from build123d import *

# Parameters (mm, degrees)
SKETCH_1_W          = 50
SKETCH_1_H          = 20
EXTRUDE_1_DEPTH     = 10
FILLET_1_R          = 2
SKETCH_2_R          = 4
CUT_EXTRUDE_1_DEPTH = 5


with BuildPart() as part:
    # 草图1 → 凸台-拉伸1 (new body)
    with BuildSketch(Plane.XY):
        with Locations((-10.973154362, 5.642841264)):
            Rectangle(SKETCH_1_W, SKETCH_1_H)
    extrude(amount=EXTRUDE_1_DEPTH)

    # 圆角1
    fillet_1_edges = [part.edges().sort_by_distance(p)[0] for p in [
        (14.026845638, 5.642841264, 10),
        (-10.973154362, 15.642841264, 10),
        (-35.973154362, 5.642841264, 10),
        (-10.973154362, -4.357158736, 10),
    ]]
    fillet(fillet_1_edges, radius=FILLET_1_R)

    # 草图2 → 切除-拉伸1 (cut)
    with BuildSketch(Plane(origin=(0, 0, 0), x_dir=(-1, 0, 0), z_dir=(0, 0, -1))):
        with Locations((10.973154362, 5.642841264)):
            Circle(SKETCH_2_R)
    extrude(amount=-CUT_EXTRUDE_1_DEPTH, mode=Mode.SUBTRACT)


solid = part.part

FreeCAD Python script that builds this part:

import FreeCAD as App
import Part
import Sketcher
from FreeCAD import Vector


def edges_at(feature, points):
    """Names of the edges that pass closest to the given points."""
    edges = feature.Shape.Edges
    near = lambda p: min(range(len(edges)), key=lambda i: edges[i].distToShape(Part.Vertex(*p))[0])
    return sorted({f"Edge{near(p) + 1}" for p in points})

doc = App.newDocument("Part")
params = doc.addObject("Spreadsheet::Sheet", "Params")
for row, (alias, value) in enumerate([
    ("sketch1_width", "50 mm"),
    ("sketch1_height", "20 mm"),
    ("pad1_length", "10 mm"),
    ("fillet_radius", "2 mm"),
    ("sketch2_diameter", "8 mm"),
    ("pocket1_length", "5 mm"),
], start=1):
    params.set(f"A{row}", alias)
    params.set(f"B{row}", "=" + value)
    params.setAlias(f"B{row}", alias)

body = doc.addObject("PartDesign::Body", "Body")

# Sketch on XY plane
sketch1 = doc.addObject("Sketcher::SketchObject", "Sketch")
body.addObject(sketch1)
sketch1.AttachmentSupport = (doc.XY_Plane, [""])
sketch1.MapMode = "FlatFace"
sketch1.addGeometry([
    Part.LineSegment(Vector(-36, 16, 0), Vector(-36, -4, 0)),
    Part.LineSegment(Vector(-36, -4, 0), Vector(14, -4, 0)),
    Part.LineSegment(Vector(14, -4, 0), Vector(14, 16, 0)),
    Part.LineSegment(Vector(14, 16, 0), Vector(-36, 16, 0)),
], False)
sketch1.addConstraint([
    Sketcher.Constraint("Coincident", 0, 2, 1, 1),
    Sketcher.Constraint("Coincident", 1, 2, 2, 1),
    Sketcher.Constraint("Coincident", 2, 2, 3, 1),
    Sketcher.Constraint("Coincident", 3, 2, 0, 1),
    Sketcher.Constraint("Vertical", 0),
    Sketcher.Constraint("Horizontal", 1),
    Sketcher.Constraint("Vertical", 2),
    Sketcher.Constraint("Horizontal", 3),
    Sketcher.Constraint("DistanceX", 1, 1, 1, 2, 50.0),
    Sketcher.Constraint("DistanceY", 0, 2, 0, 1, 20.0),
    Sketcher.Constraint("DistanceY", 0, 2, -1, 1, 4.357159),
    Sketcher.Constraint("DistanceX", 0, 2, -1, 1, 35.973154),
])
sketch1.setExpression("Constraints[8]", "Params.sketch1_width")
sketch1.setExpression("Constraints[9]", "Params.sketch1_height")
pad1 = doc.addObject("PartDesign::Pad", "Pad")
body.addObject(pad1)
pad1.Profile = sketch1
pad1.setExpression("Length", "Params.pad1_length")
doc.recompute()

fillet = doc.addObject("PartDesign::Fillet", "Fillet")
body.addObject(fillet)
fillet.Base = (pad1, edges_at(pad1, [
    (14.027, 5.643, 10),
    (-10.973, 15.643, 10),
    (-35.973, 5.643, 10),
    (-10.973, -4.357, 10),
]))
fillet.setExpression("Radius", "Params.fillet_radius")

# Sketch on XY plane
sketch2 = doc.addObject("Sketcher::SketchObject", "Sketch001")
body.addObject(sketch2)
sketch2.AttachmentSupport = (doc.XY_Plane, [""])
sketch2.MapMode = "FlatFace"
sketch2.addGeometry(Part.Circle(Vector(-11, 5.6, 0), Vector(0, 0, 1), 4), False)
sketch2.addConstraint([
    Sketcher.Constraint("Diameter", 0, 8.0),
    Sketcher.Constraint("DistanceY", -1, 1, 0, 3, 5.642841),
    Sketcher.Constraint("DistanceX", 0, 3, -1, 1, 10.973154),
])
sketch2.setExpression("Constraints[0]", "Params.sketch2_diameter")
pocket1 = doc.addObject("PartDesign::Pocket", "Pocket")
body.addObject(pocket1)
pocket1.Profile = sketch2
pocket1.setExpression("Length", "Params.pocket1_length")
pocket1.Reversed = True

doc.recompute()
